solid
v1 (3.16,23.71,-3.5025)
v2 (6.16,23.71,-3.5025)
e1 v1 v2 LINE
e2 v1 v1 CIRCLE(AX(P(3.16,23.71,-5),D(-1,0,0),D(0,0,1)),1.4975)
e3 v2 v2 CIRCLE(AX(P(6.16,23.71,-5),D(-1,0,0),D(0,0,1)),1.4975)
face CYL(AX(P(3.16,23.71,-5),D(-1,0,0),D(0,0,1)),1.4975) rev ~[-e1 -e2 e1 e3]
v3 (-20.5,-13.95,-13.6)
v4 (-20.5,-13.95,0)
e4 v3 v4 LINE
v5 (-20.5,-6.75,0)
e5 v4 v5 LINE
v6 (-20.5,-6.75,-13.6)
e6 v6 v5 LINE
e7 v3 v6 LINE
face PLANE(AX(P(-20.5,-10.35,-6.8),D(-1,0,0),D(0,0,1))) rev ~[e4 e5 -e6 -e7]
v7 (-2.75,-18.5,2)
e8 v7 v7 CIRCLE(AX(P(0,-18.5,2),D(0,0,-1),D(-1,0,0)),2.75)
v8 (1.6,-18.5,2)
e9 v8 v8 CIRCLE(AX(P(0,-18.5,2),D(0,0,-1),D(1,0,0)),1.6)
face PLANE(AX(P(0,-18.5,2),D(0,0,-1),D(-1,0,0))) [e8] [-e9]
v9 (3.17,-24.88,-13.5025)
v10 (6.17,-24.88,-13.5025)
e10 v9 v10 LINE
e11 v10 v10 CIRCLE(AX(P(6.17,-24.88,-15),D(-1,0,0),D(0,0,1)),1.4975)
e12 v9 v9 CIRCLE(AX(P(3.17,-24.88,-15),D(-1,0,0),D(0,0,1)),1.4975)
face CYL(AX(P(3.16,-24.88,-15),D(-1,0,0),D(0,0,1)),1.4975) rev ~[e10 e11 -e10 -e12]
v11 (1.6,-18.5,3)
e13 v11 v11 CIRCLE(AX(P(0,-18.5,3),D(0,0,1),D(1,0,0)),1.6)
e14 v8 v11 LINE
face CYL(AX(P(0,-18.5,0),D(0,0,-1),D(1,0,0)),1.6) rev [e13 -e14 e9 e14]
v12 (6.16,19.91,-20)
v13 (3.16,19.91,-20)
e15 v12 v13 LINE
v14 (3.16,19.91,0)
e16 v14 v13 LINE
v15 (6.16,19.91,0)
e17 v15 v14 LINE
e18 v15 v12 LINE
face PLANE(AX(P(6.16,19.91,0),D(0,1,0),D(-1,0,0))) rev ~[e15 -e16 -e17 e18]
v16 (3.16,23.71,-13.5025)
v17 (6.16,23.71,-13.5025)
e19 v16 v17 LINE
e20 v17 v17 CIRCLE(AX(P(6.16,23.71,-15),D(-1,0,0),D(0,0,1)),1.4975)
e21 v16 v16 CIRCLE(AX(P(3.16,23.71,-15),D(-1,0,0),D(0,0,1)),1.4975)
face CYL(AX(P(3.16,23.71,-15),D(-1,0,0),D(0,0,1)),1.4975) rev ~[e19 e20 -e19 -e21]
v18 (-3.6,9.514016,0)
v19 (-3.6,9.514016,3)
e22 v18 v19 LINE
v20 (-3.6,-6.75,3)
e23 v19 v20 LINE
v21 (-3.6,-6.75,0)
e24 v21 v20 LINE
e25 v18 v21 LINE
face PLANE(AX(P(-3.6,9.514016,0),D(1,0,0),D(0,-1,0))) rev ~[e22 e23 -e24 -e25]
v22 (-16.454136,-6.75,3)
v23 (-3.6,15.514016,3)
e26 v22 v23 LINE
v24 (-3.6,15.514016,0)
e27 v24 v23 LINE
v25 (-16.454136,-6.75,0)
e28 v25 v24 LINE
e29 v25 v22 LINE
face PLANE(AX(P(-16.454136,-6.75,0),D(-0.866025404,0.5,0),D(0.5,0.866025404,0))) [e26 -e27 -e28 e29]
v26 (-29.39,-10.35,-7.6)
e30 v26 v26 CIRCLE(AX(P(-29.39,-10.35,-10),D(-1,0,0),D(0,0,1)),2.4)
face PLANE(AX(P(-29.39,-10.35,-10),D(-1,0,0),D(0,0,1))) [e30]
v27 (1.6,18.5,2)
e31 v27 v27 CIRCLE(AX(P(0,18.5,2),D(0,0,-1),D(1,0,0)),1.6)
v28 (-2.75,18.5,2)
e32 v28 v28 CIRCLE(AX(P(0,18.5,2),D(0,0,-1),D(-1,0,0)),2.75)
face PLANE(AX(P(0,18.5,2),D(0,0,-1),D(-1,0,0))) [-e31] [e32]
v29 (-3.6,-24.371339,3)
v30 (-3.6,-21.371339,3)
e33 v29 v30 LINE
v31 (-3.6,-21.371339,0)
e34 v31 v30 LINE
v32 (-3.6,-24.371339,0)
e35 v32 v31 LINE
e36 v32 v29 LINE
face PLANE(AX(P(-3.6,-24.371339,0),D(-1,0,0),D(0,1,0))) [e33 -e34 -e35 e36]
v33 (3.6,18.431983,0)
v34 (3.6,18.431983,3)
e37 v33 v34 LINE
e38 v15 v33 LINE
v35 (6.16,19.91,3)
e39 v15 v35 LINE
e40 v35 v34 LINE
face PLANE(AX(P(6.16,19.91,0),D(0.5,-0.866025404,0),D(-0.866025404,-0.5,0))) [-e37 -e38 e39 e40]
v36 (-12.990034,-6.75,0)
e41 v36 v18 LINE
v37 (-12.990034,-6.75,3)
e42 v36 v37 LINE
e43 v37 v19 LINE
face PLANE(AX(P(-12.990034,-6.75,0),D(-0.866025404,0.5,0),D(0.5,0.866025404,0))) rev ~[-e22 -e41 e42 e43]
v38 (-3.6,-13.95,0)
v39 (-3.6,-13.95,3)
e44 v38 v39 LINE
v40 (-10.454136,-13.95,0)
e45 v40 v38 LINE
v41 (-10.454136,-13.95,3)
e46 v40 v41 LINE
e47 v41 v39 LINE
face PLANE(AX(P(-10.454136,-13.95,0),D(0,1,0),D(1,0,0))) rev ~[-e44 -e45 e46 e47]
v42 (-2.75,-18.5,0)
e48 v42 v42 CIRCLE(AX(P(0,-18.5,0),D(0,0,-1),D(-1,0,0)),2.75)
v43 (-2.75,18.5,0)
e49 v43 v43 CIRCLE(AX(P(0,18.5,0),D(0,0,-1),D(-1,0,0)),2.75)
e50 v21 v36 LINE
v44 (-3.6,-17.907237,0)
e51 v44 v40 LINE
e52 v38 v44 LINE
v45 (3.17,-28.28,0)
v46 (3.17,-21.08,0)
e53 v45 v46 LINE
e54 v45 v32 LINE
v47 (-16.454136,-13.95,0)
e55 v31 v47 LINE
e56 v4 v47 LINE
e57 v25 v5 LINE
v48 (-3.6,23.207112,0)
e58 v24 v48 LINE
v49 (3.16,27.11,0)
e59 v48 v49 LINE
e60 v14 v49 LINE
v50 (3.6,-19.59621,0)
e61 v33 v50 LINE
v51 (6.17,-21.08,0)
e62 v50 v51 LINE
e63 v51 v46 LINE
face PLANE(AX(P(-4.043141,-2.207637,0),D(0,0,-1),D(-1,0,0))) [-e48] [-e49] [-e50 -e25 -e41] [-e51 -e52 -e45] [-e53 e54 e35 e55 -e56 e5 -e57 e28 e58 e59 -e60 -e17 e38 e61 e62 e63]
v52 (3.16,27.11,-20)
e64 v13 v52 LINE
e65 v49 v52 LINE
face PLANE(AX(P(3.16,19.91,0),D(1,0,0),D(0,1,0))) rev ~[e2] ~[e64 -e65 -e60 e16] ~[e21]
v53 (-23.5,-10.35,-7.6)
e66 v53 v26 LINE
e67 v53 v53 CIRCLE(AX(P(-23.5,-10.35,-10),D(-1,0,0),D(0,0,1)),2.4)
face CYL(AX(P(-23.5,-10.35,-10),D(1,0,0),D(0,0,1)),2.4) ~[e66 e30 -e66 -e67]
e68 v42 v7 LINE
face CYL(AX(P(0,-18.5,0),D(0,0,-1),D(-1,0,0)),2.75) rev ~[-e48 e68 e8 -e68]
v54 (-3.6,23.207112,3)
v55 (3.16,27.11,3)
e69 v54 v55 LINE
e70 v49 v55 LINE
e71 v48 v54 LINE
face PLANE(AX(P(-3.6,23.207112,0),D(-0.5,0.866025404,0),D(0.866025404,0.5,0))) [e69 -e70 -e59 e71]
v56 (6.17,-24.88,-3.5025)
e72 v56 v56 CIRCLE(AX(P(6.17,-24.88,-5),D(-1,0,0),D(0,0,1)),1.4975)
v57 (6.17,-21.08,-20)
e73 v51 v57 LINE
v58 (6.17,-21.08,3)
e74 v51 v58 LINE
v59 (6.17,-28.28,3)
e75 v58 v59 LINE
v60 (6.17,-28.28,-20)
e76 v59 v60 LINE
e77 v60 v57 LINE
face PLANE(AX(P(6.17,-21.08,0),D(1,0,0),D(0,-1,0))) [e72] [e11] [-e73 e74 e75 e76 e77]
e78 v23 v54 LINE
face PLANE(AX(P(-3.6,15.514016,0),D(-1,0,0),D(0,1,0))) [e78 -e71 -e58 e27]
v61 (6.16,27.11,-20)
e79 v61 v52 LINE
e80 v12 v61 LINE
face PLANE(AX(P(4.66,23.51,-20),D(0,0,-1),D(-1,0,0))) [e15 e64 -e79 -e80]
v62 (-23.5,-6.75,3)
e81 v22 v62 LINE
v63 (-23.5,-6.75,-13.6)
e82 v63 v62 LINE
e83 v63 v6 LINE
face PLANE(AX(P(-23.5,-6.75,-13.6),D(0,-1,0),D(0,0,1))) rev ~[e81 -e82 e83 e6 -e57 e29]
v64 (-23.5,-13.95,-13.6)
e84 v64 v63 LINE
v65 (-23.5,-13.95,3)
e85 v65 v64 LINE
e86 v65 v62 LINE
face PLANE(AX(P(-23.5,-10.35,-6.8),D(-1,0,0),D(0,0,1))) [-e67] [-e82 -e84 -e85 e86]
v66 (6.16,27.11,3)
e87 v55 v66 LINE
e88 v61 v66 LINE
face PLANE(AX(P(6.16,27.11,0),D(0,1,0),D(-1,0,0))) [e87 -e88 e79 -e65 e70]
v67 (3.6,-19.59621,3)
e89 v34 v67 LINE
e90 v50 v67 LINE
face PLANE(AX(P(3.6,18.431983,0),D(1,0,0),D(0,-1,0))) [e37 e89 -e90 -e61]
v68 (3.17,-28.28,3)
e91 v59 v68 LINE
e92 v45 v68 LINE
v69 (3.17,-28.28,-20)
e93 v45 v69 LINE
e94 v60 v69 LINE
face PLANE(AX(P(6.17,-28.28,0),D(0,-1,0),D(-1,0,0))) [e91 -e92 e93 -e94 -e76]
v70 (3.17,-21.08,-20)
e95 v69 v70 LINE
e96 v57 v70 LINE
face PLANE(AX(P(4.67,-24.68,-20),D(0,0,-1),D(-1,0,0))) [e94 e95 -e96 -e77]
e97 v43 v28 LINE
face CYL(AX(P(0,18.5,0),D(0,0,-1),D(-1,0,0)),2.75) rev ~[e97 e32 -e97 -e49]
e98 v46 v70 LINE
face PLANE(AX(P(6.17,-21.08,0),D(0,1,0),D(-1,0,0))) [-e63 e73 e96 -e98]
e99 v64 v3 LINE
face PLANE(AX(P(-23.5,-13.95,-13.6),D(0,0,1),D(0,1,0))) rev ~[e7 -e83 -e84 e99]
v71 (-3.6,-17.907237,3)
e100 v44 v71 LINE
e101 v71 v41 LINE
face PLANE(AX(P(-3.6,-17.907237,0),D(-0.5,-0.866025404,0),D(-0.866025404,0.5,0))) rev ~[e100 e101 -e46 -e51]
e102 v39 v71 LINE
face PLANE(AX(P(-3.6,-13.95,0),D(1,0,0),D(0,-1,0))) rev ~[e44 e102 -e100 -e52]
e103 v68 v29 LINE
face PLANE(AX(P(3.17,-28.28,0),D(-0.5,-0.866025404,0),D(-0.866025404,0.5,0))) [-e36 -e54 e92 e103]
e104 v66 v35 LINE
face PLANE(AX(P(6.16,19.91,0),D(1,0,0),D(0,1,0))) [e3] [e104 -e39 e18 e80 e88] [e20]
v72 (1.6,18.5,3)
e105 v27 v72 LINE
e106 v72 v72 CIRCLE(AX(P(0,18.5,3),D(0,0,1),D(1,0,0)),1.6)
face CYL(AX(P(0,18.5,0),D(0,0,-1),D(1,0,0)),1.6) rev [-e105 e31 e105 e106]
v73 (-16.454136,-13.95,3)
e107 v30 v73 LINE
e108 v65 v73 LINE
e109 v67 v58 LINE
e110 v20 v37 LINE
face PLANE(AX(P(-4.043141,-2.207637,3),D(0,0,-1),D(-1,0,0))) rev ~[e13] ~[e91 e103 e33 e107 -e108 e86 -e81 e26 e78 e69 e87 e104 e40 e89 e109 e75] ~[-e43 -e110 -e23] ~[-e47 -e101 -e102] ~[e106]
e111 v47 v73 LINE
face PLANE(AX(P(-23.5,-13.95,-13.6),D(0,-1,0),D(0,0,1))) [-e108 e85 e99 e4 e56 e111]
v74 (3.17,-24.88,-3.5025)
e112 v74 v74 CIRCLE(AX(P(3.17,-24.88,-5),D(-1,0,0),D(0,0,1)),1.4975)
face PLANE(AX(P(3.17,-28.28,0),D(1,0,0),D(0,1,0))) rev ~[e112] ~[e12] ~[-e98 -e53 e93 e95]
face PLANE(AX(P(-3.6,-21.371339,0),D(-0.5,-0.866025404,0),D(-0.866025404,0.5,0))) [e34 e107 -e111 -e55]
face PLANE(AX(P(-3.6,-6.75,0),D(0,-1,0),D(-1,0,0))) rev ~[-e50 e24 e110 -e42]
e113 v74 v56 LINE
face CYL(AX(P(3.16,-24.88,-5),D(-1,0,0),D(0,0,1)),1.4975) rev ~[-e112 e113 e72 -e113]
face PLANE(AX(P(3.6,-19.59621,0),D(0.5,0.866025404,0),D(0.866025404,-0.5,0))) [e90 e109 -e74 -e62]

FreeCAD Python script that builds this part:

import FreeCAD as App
import Part
import Sketcher

V = App.Vector
Q = App.Units.Quantity


def add_polygon(sketch, points):
    """Adds a closed chain of lines whose ends are joined by coincident constraints."""
    first, n = sketch.GeometryCount, len(points)
    for a, b in zip(points, points[1:] + points[:1]):
        sketch.addGeometry(Part.LineSegment(App.Vector(*a, 0), App.Vector(*b, 0)), False)
    for i in range(n):
        sketch.addConstraint(Sketcher.Constraint("Coincident", first + i, 2, first + (i + 1) % n, 1))

doc = App.newDocument("Part")
body = doc.addObject("PartDesign::Body", "Body")

sketch1 = body.newObject("Sketcher::SketchObject", "Sketch")
sketch1.AttachmentSupport = (doc.getObject("XY_Plane"), [""])
sketch1.MapMode = "FlatFace"
add_polygon(sketch1, [(3.6, -19.6), (3.6, 18.4), (6.2, 19.9), (6.2, 27.1), (3.2, 27.1), (-3.6, 23.2), (-3.6, 15.5), (-16.5, -6.8), (-23.5, -6.8), (-23.5, -13.9), (-16.5, -13.9), (-3.6, -21.4), (-3.6, -24.4), (3.2, -28.3), (6.2, -28.3), (6.2, -21.1)])
sketch1.addGeometry(Part.Circle(V(0, -18.5, 0), V(0, 0, 1), 1.6), False)
add_polygon(sketch1, [(-10.5, -13.9), (-3.6, -13.9), (-3.6, -17.9)])
sketch1.addGeometry(Part.Circle(V(0, 18.5, 0), V(0, 0, 1), 1.6), False)
add_polygon(sketch1, [(-3.6, -6.8), (-13, -6.8), (-3.6, 9.5)])
sketch1.addConstraint([
    Sketcher.Constraint("Vertical", 0),
    Sketcher.Constraint("Vertical", 2),
    Sketcher.Constraint("Horizontal", 3),
    Sketcher.Constraint("Vertical", 5),
    Sketcher.Constraint("Horizontal", 7),
    Sketcher.Constraint("Vertical", 8),
    Sketcher.Constraint("Horizontal", 9),
    Sketcher.Constraint("Vertical", 11),
    Sketcher.Constraint("Horizontal", 13),
    Sketcher.Constraint("Vertical", 14),
    Sketcher.Constraint("Horizontal", 17),
    Sketcher.Constraint("Vertical", 18),
    Sketcher.Constraint("Horizontal", 21),
    Sketcher.Constraint("Vertical", 23),
    Sketcher.Constraint("Equal", 16, 20),
    Sketcher.Constraint("Symmetric", 16, 3, 20, 3, -1, 1),
    Sketcher.Constraint("PointOnObject", 16, 3, -2),
    Sketcher.Constraint("Parallel", 1, 4),
    Sketcher.Constraint("Perpendicular", 6, 10),
    Sketcher.Constraint("Parallel", 10, 12),
    Sketcher.Constraint("Parallel", 12, 15),
    Sketcher.Constraint("Parallel", 15, 19),
    Sketcher.Constraint("Perpendicular", 19, 22),
    Sketcher.Constraint("Horizontal", 9, 2, 17, 2),
    Sketcher.Constraint("Horizontal", 7, 2, 21, 2),
    Sketcher.Constraint("Vertical", 6, 2, 9, 2),
    Sketcher.Constraint("Vertical", 5, 2, 10, 2),
    Sketcher.Constraint("Vertical", 11, 2, 17, 2),
    Sketcher.Constraint("Vertical", 18, 2, 22, 2),
    Sketcher.Constraint("Equal", 3, 13),
    Sketcher.Constraint("Equal", 2, 8),
    Sketcher.Constraint("Equal", 13, 11),
    Sketcher.Constraint("Equal", 8, 14),
    Sketcher.Constraint("Diameter", 16, Q("3.2 mm")),
    Sketcher.Constraint("DistanceX", 3, 2, 3, 1, Q("3 mm")),
    Sketcher.Constraint("Angle", 1, Q("30 deg")),
    Sketcher.Constraint("Angle", 6, Q("-120 deg")),
    Sketcher.Constraint("DistanceY", 2, 1, 2, 2, Q("7.2 mm")),
    Sketcher.Constraint("DistanceY", 16, 3, 20, 3, Q("37 mm")),
    Sketcher.Constraint("DistanceX", 9, 2, 19, 2, Q("6 mm")),
    Sketcher.Constraint("DistanceY", 22, 2, 5, 2, Q("6 mm")),
    Sketcher.Constraint("DistanceX", -1, 1, 0, 2, Q("3.6 mm")),
    Sketcher.Constraint("DistanceX", 4, 2, -1, 1, Q("3.6 mm")),
    Sketcher.Constraint("DistanceX", 7, 2, -1, 1, Q("23.5 mm")),
    Sketcher.Constraint("DistanceX", -1, 1, 1, 2, Q("6.16 mm")),
    Sketcher.Constraint("DistanceY", -1, 1, 1, 2, Q("19.91 mm")),
    Sketcher.Constraint("DistanceY", 6, 2, -1, 1, Q("6.75 mm")),
    Sketcher.Constraint("DistanceX", -1, 1, 12, 2, Q("3.17 mm")),
    Sketcher.Constraint("DistanceY", 12, 2, -1, 1, Q("28.28 mm")),
])
pad1 = body.newObject("PartDesign::Pad", "Pad")
pad1.Profile = sketch1
pad1.Length = 3

sketch2 = body.newObject("Sketcher::SketchObject", "Sketch001")
sketch2.AttachmentSupport = (doc.getObject("XY_Plane"), [""])
sketch2.MapMode = "FlatFace"
sketch2.addGeometry([
    Part.Circle(V(0, 18.5, 0), V(0, 0, 1), 2.8),
    Part.Circle(V(0, -18.5, 0), V(0, 0, 1), 2.8),
], False)
sketch2.addConstraint([
    Sketcher.Constraint("Equal", 0, 1),
    Sketcher.Constraint("Symmetric", 0, 3, 1, 3, -1, 1),
    Sketcher.Constraint("PointOnObject", 0, 3, -2),
    Sketcher.Constraint("Diameter", 0, Q("5.5 mm")),
    Sketcher.Constraint("DistanceY", 1, 3, 0, 3, Q("37 mm")),
])
pocket1 = body.newObject("PartDesign::Pocket", "Pocket")
pocket1.Profile = sketch2
pocket1.Length = 2
pocket1.Reversed = True

sketch3 = body.newObject("Sketcher::SketchObject", "Sketch002")
sketch3.AttachmentSupport = (doc.getObject("XY_Plane"), [""])
sketch3.MapMode = "FlatFace"
add_polygon(sketch3, [(6.2, 27.1), (6.2, 19.9), (3.2, 19.9), (3.2, 27.1)])
add_polygon(sketch3, [(6.2, -21.1), (6.2, -28.3), (3.2, -28.3), (3.2, -21.1)])
sketch3.addConstraint([
    Sketcher.Constraint("Vertical", 0),
    Sketcher.Constraint("Horizontal", 1),
    Sketcher.Constraint("Vertical", 2),
    Sketcher.Constraint("Horizontal", 3),
    Sketcher.Constraint("Vertical", 4),
    Sketcher.Constraint("Horizontal", 5),
    Sketcher.Constraint("Vertical", 6),
    Sketcher.Constraint("Horizontal", 7),
    Sketcher.Constraint("Equal", 3, 5),
    Sketcher.Constraint("Equal", 2, 4),
    Sketcher.Constraint("DistanceX", 1, 2, 1, 1, Q("3 mm")),
    Sketcher.Constraint("DistanceY", 0, 2, 0, 1, Q("7.2 mm")),
    Sketcher.Constraint("DistanceX", -1, 1, 0, 2, Q("6.16 mm")),
    Sketcher.Constraint("DistanceY", -1, 1, 0, 2, Q("19.91 mm")),
    Sketcher.Constraint("DistanceX", -1, 1, 4, 2, Q("6.17 mm")),
    Sketcher.Constraint("DistanceY", 4, 2, -1, 1, Q("28.28 mm")),
])
pad2 = body.newObject("PartDesign::Pad", "Pad001")
pad2.Profile = sketch3
pad2.Length = 20
pad2.Reversed = True

sketch4 = body.newObject("Sketcher::SketchObject", "Sketch003")
sketch4.AttachmentSupport = (doc.getObject("YZ_Plane"), [""])
sketch4.MapMode = "FlatFace"
sketch4.AttachmentOffset = App.Placement(V(0, 0, 3.16), App.Rotation())
sketch4.addGeometry(Part.Circle(V(23.7, -5, 0), V(0, 0, 1), 1.5), False)
sketch4.addConstraint([
    Sketcher.Constraint("Diameter", 0, Q("2.995 mm")),
    Sketcher.Constraint("DistanceY", 0, 3, -1, 1, Q("5 mm")),
    Sketcher.Constraint("DistanceX", -1, 1, 0, 3, Q("23.71 mm")),
])
pocket2 = body.newObject("PartDesign::Pocket", "Pocket001")
pocket2.Profile = sketch4
pocket2.Type = "UpToFirst"
pocket2.Reversed = True

sketch5 = body.newObject("Sketcher::SketchObject", "Sketch004")
sketch5.AttachmentSupport = (doc.getObject("YZ_Plane"), [""])
sketch5.MapMode = "FlatFace"
sketch5.AttachmentOffset = App.Placement(V(0, 0, 3.16), App.Rotation())
sketch5.addGeometry(Part.Circle(V(23.7, -15, 0), V(0, 0, 1), 1.5), False)
sketch5.addConstraint([
    Sketcher.Constraint("Diameter", 0, Q("2.995 mm")),
    Sketcher.Constraint("DistanceY", 0, 3, -1, 1, Q("15 mm")),
    Sketcher.Constraint("DistanceX", -1, 1, 0, 3, Q("23.71 mm")),
])
pocket3 = body.newObject("PartDesign::Pocket", "Pocket002")
pocket3.Profile = sketch5
pocket3.Type = "UpToFirst"
pocket3.Reversed = True

sketch6 = body.newObject("Sketcher::SketchObject", "Sketch005")
sketch6.AttachmentSupport = (doc.getObject("YZ_Plane"), [""])
sketch6.MapMode = "FlatFace"
sketch6.AttachmentOffset = App.Placement(V(0, 0, 3.16), App.Rotation())
sketch6.addGeometry(Part.Circle(V(-24.9, -15, 0), V(0, 0, 1), 1.5), False)
sketch6.addConstraint([
    Sketcher.Constraint("Diameter", 0, Q("2.995 mm")),
    Sketcher.Constraint("DistanceY", 0, 3, -1, 1, Q("15 mm")),
    Sketcher.Constraint("DistanceX", 0, 3, -1, 1, Q("24.88 mm")),
])
pocket4 = body.newObject("PartDesign::Pocket", "Pocket003")
pocket4.Profile = sketch6
pocket4.Length = 3.01
pocket4.Reversed = True

sketch7 = body.newObject("Sketcher::SketchObject", "Sketch006")
sketch7.AttachmentSupport = (doc.getObject("YZ_Plane"), [""])
sketch7.MapMode = "FlatFace"
sketch7.AttachmentOffset = App.Placement(V(0, 0, 3.16), App.Rotation())
sketch7.addGeometry(Part.Circle(V(-24.9, -5, 0), V(0, 0, 1), 1.5), False)
sketch7.addConstraint([
    Sketcher.Constraint("Diameter", 0, Q("2.995 mm")),
    Sketcher.Constraint("DistanceY", 0, 3, -1, 1, Q("5 mm")),
    Sketcher.Constraint("DistanceX", 0, 3, -1, 1, Q("24.88 mm")),
])
pocket5 = body.newObject("PartDesign::Pocket", "Pocket004")
pocket5.Profile = sketch7
pocket5.Length = 3.01
pocket5.Reversed = True

sketch8 = body.newObject("Sketcher::SketchObject", "Sketch007")
sketch8.AttachmentSupport = (doc.getObject("YZ_Plane"), [""])
sketch8.MapMode = "FlatFace"
sketch8.AttachmentOffset = App.Placement(V(0, 0, -23.5), App.Rotation())
add_polygon(sketch8, [(-7, -14), (-14, -14), (-14, 0), (-7, 0)])
sketch8.addConstraint([
    Sketcher.Constraint("Horizontal", 0),
    Sketcher.Constraint("Vertical", 1),
    Sketcher.Constraint("Horizontal", 2),
    Sketcher.Constraint("Vertical", 3),
    Sketcher.Constraint("PointOnObject", 1, 2, -1),
    Sketcher.Constraint("DistanceX", 0, 2, 0, 1, Q("7.2 mm")),
    Sketcher.Constraint("DistanceY", 1, 1, 1, 2, Q("13.6 mm")),
    Sketcher.Constraint("DistanceX", 0, 2, -1, 1, Q("13.95 mm")),
])
pad3 = body.newObject("PartDesign::Pad", "Pad002")
pad3.Profile = sketch8
pad3.Length = 3

sketch9 = body.newObject("Sketcher::SketchObject", "Sketch008")
sketch9.AttachmentSupport = (doc.getObject("YZ_Plane"), [""])
sketch9.MapMode = "FlatFace"
sketch9.AttachmentOffset = App.Placement(V(0, 0, -23.5), App.Rotation())
sketch9.addGeometry(Part.Circle(V(-10.3, -10, 0), V(0, 0, 1), 2.4), False)
sketch9.addConstraint([
    Sketcher.Constraint("Diameter", 0, Q("4.8 mm")),
    Sketcher.Constraint("DistanceY", 0, 3, -1, 1, Q("10 mm")),
    Sketcher.Constraint("DistanceX", 0, 3, -1, 1, Q("10.35 mm")),
])
pad4 = body.newObject("PartDesign::Pad", "Pad003")
pad4.Profile = sketch9
pad4.Length = 5.89
pad4.Reversed = True

doc.recompute()
